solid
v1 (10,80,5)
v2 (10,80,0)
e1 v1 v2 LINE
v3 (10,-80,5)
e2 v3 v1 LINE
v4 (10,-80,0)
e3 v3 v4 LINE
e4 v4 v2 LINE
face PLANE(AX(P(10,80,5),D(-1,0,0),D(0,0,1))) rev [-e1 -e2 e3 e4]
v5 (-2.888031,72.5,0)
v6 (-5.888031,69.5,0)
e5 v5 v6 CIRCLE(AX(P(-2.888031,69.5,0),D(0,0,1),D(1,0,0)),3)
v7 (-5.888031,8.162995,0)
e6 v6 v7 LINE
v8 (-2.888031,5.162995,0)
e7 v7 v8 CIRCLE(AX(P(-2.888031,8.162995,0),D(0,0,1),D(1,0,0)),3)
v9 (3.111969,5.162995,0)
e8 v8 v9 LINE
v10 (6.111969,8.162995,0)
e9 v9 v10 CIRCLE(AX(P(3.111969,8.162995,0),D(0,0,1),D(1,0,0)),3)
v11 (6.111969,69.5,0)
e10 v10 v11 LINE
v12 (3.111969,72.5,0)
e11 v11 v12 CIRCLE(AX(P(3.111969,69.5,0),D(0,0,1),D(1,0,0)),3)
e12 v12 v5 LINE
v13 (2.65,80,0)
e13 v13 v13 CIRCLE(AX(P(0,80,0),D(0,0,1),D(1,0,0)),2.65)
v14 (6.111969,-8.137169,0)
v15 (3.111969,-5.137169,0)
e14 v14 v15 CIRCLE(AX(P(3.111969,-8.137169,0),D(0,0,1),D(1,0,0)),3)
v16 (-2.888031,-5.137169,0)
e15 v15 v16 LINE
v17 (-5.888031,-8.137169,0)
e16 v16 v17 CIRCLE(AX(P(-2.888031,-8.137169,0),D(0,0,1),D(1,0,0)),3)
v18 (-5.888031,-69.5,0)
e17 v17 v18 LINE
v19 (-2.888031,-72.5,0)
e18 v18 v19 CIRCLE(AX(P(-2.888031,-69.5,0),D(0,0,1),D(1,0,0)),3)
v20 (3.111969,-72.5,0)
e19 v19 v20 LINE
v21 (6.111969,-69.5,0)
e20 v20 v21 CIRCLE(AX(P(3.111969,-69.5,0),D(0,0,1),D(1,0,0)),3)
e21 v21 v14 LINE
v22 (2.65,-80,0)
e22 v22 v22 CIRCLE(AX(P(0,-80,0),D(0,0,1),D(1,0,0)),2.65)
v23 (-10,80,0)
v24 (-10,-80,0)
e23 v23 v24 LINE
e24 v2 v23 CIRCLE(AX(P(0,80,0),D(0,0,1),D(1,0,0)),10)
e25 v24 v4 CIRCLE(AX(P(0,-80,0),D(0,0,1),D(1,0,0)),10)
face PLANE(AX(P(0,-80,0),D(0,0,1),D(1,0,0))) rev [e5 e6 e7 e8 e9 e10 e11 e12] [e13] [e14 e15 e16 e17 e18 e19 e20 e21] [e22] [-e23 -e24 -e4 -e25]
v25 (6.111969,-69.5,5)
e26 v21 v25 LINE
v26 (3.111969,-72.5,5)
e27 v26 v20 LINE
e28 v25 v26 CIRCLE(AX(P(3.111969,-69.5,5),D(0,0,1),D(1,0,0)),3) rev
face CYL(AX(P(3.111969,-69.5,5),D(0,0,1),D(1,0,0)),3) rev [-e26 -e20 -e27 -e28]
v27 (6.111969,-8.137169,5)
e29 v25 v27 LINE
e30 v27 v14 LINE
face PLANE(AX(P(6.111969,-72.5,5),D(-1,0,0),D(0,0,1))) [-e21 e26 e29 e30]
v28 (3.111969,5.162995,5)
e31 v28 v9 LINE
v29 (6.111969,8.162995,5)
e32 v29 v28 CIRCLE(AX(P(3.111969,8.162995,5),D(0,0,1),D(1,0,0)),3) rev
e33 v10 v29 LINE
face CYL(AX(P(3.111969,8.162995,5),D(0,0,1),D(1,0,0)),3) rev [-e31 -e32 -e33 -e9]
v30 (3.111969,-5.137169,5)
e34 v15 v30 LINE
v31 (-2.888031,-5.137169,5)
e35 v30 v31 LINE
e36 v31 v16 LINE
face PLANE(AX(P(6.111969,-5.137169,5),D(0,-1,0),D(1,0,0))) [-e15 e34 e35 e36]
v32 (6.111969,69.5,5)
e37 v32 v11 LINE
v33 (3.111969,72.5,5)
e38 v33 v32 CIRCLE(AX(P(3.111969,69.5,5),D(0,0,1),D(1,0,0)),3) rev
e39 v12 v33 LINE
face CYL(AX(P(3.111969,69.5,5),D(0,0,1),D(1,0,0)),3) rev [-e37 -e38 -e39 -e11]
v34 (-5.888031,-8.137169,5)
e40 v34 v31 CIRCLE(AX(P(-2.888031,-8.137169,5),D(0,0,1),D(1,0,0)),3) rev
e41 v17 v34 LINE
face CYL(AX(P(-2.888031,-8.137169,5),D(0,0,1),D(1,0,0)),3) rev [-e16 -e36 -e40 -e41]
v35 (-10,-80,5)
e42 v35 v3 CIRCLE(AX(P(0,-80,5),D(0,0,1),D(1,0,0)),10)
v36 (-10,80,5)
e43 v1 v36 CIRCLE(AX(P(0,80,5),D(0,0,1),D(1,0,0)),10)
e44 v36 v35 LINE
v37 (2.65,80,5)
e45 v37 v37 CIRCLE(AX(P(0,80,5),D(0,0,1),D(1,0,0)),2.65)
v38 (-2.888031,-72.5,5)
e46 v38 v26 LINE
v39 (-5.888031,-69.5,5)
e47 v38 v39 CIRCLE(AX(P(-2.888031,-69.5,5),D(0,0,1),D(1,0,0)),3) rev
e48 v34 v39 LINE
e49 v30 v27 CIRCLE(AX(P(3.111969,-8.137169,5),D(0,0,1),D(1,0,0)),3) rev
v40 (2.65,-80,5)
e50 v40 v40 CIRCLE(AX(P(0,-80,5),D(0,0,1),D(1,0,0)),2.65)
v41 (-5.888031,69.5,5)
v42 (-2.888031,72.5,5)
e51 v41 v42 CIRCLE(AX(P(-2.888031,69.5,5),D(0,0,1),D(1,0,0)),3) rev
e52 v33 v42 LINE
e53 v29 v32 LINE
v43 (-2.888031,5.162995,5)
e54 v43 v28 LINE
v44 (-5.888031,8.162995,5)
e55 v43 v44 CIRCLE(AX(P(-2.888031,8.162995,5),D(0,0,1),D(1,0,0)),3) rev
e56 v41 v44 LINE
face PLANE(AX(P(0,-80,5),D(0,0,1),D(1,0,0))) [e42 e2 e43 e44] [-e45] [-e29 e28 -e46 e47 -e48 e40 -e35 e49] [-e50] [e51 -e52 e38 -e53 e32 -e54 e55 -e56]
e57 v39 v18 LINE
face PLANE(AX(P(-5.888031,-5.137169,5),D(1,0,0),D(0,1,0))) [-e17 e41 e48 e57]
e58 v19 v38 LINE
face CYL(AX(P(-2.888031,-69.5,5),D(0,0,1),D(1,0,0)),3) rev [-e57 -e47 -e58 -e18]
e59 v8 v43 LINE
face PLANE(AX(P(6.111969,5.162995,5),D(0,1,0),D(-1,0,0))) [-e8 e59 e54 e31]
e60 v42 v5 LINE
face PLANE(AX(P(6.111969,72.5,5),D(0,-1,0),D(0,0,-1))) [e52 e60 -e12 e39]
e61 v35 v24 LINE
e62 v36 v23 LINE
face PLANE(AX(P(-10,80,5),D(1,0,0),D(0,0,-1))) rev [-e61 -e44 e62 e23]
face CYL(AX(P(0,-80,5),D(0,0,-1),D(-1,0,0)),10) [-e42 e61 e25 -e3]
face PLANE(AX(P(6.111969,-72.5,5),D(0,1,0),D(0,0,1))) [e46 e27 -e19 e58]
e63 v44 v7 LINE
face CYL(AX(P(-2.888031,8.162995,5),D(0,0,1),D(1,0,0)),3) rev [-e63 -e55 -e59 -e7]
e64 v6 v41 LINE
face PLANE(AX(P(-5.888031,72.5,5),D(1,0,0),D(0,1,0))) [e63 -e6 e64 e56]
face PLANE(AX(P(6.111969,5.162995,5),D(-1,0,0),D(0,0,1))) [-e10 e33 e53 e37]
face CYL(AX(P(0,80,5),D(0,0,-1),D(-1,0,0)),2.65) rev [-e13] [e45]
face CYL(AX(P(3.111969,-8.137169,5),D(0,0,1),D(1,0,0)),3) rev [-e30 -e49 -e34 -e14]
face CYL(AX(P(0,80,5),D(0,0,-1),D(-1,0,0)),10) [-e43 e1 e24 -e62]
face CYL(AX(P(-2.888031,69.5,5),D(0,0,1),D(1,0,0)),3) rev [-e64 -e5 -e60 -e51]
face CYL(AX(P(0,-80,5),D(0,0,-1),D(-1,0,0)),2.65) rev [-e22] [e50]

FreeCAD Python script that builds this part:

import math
import FreeCAD as App
import Part
import Sketcher

V = App.Vector
Q = App.Units.Quantity


def edges_at(feature, points):
    """Names of the edges that pass closest to the given points."""
    edges = feature.Shape.Edges
    near = lambda p: min(range(len(edges)), key=lambda i: edges[i].distToShape(Part.Vertex(*p))[0])
    return sorted({f"Edge{near(p) + 1}" for p in points})


def add_polygon(sketch, points):
    """Adds a closed chain of lines whose ends are joined by coincident constraints."""
    first, n = sketch.GeometryCount, len(points)
    for a, b in zip(points, points[1:] + points[:1]):
        sketch.addGeometry(Part.LineSegment(App.Vector(*a, 0), App.Vector(*b, 0)), False)
    for i in range(n):
        sketch.addConstraint(Sketcher.Constraint("Coincident", first + i, 2, first + (i + 1) % n, 1))

doc = App.newDocument("Part")
body = doc.addObject("PartDesign::Body", "Body")

sketch1 = body.newObject("Sketcher::SketchObject", "Sketch")
sketch1.AttachmentSupport = (doc.getObject("XY_Plane"), [""])
sketch1.MapMode = "FlatFace"
sketch1.addGeometry(Part.LineSegment(V(-10, 80, 0), V(-10, -80, 0)), False)
sketch1.addGeometry(Part.ArcOfCircle(Part.Circle(V(0, -80, 0), V(0, 0, 1), 10), math.radians(180), math.radians(360)), False)
sketch1.addGeometry(Part.LineSegment(V(10, -80, 0), V(10, 80, 0)), False)
sketch1.addGeometry(Part.ArcOfCircle(Part.Circle(V(0, 80, 0), V(0, 0, 1), 10), math.radians(0), math.radians(180)), False)
sketch1.addGeometry(Part.Circle(V(0, -80, 0), V(0, 0, 1), 2.6), False)
add_polygon(sketch1, [(6.1, -72.5), (-5.9, -72.5), (-5.9, -5.1), (6.1, -5.1)])
sketch1.addGeometry(Part.Circle(V(0, 80, 0), V(0, 0, 1), 2.6), False)
add_polygon(sketch1, [(6.1, 5.2), (-5.9, 5.2), (-5.9, 72.5), (6.1, 72.5)])
sketch1.addConstraint([
    Sketcher.Constraint("Tangent", 0, 2, 1, 1),
    Sketcher.Constraint("Tangent", 1, 2, 2, 1),
    Sketcher.Constraint("Tangent", 2, 2, 3, 1),
    Sketcher.Constraint("Tangent", 3, 2, 0, 1),
    Sketcher.Constraint("Vertical", 0),
    Sketcher.Constraint("Vertical", 2),
    Sketcher.Constraint("Horizontal", 5),
    Sketcher.Constraint("Vertical", 6),
    Sketcher.Constraint("Horizontal", 7),
    Sketcher.Constraint("Vertical", 8),
    Sketcher.Constraint("Horizontal", 10),
    Sketcher.Constraint("Vertical", 11),
    Sketcher.Constraint("Horizontal", 12),
    Sketcher.Constraint("Vertical", 13),
    Sketcher.Constraint("Coincident", 4, 3, 1, 3),
    Sketcher.Constraint("Coincident", 9, 3, 3, 3),
    Sketcher.Constraint("Equal", 4, 9),
    Sketcher.Constraint("Symmetric", 1, 3, 3, 3, -1, 1),
    Sketcher.Constraint("Symmetric", 5, 2, 11, 2, -1),
    Sketcher.Constraint("Vertical", 8, 2, 12, 2),
    Sketcher.Constraint("Radius", 1, Q("10 mm")),
    Sketcher.Constraint("Diameter", 4, Q("5.3 mm")),
    Sketcher.Constraint("DistanceX", 5, 2, 5, 1, Q("12 mm")),
    Sketcher.Constraint("DistanceY", 0, 2, 0, 1, Q("160 mm")),
    Sketcher.Constraint("DistanceY", 5, 2, -1, 1, Q("72.5 mm")),
    Sketcher.Constraint("DistanceY", 6, 1, 6, 2, Q("67.362831 mm")),
    Sketcher.Constraint("DistanceY", 11, 1, 11, 2, Q("67.337005 mm")),
    Sketcher.Constraint("DistanceX", 5, 2, -1, 1, Q("5.888031 mm")),
])
pad1 = body.newObject("PartDesign::Pad", "Pad")
pad1.Profile = sketch1
pad1.Length = 5
doc.recompute()

fillet = body.newObject("PartDesign::Fillet", "Fillet")
fillet.Base = (pad1, edges_at(pad1, [
    (-5.888, 5.163, 2.5),
    (6.112, 5.163, 2.5),
    (6.112, 72.5, 2.5),
    (-5.888, 72.5, 2.5),
    (-5.888, -5.137, 2.5),
    (-5.888, -72.5, 2.5),
    (6.112, -72.5, 2.5),
    (6.112, -5.137, 2.5),
]))
fillet.Radius = 3

doc.recompute()
